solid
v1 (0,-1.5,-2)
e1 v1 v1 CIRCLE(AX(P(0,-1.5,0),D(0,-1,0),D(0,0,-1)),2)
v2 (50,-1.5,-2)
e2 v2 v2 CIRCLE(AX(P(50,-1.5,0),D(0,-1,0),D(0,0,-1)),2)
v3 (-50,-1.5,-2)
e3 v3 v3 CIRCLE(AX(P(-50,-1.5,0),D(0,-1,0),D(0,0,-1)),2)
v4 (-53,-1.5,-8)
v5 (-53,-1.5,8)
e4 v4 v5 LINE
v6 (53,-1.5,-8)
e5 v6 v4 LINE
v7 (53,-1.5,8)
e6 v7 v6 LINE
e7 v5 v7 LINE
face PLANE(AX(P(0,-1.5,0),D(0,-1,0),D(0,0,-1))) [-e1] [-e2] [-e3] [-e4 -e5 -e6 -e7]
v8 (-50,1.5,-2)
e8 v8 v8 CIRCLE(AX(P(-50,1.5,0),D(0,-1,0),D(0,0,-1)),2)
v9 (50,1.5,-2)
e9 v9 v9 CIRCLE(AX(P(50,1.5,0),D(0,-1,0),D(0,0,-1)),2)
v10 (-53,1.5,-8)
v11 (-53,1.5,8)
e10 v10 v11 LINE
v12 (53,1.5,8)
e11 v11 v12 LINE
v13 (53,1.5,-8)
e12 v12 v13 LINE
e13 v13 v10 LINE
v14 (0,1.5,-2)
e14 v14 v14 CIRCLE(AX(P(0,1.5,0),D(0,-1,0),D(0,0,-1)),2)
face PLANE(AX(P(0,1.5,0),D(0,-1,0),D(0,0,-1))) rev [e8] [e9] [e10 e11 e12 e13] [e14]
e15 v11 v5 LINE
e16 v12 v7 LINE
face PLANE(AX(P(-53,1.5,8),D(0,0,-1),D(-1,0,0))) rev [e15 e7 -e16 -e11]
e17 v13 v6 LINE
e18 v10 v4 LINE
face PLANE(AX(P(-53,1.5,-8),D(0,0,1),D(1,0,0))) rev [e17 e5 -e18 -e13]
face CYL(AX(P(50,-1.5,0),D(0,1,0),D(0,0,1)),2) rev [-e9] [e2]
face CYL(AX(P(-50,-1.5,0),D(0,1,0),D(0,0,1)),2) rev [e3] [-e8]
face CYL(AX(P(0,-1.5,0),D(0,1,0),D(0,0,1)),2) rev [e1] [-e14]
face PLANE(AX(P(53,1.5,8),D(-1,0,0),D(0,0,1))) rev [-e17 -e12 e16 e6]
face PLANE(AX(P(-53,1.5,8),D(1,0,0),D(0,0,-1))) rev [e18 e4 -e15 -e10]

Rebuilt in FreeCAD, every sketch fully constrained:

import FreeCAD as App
import Part
import Sketcher

V = App.Vector


def add_polygon(sketch, points):
    """Adds a closed chain of lines whose ends are joined by coincident constraints."""
    first, n = sketch.GeometryCount, len(points)
    for a, b in zip(points, points[1:] + points[:1]):
        sketch.addGeometry(Part.LineSegment(App.Vector(*a, 0), App.Vector(*b, 0)), False)
    for i in range(n):
        sketch.addConstraint(Sketcher.Constraint("Coincident", first + i, 2, first + (i + 1) % n, 1))

doc = App.newDocument("Part")
params = doc.addObject("Spreadsheet::Sheet", "Params")
for row, (alias, value) in enumerate([
    ("sketch1_width", "106 mm"),
    ("sketch1_height", "16 mm"),
    ("pad1_length", "3 mm"),
    ("sketch2_diameter", "4 mm"),
], start=1):
    params.set(f"A{row}", alias)
    params.set(f"B{row}", "=" + value)
    params.setAlias(f"B{row}", alias)

body = doc.addObject("PartDesign::Body", "Body")

# Sketch on XZ plane
sketch1 = body.newObject("Sketcher::SketchObject", "Sketch")
sketch1.AttachmentSupport = (doc.getObject("XZ_Plane"), [""])
sketch1.MapMode = "FlatFace"
add_polygon(sketch1, [(-53, -8), (-53, 8), (53, 8), (53, -8)])  # lines 0-3
sketch1.addConstraint(Sketcher.Constraint("Vertical", 0))
sketch1.addConstraint(Sketcher.Constraint("Horizontal", 1))
sketch1.addConstraint(Sketcher.Constraint("Vertical", 2))
sketch1.addConstraint(Sketcher.Constraint("Horizontal", 3))
sketch1.addConstraint(Sketcher.Constraint("Symmetric", 0, 2, 2, 2, -1, 1))
sketch1.addConstraint(Sketcher.Constraint("DistanceX", 1, 1, 1, 2, 106.0))
sketch1.addConstraint(Sketcher.Constraint("DistanceY", 0, 1, 0, 2, 16.0))
sketch1.setExpression("Constraints[9]", "Params.sketch1_width")
sketch1.setExpression("Constraints[10]", "Params.sketch1_height")
pad1 = body.newObject("PartDesign::Pad", "Pad")
pad1.Profile = sketch1
pad1.setExpression("Length", "Params.pad1_length")
pad1.Midplane = True

# Sketch on XZ plane
sketch2 = body.newObject("Sketcher::SketchObject", "Sketch001")
sketch2.AttachmentSupport = (doc.getObject("XZ_Plane"), [""])
sketch2.MapMode = "FlatFace"
sketch2.AttachmentOffset = App.Placement(V(0, 0, -1.5), App.Rotation())
sketch2.addGeometry(Part.Circle(V(0, 0, 0), V(0, 0, 1), 2), False)
sketch2.addGeometry(Part.Circle(V(-50, 0, 0), V(0, 0, 1), 2), False)
sketch2.addGeometry(Part.Circle(V(50, 0, 0), V(0, 0, 1), 2), False)
sketch2.addConstraint(Sketcher.Constraint("Coincident", 0, 3, -1, 1))
sketch2.addConstraint(Sketcher.Constraint("Equal", 0, 1))
sketch2.addConstraint(Sketcher.Constraint("Equal", 1, 2))
sketch2.addConstraint(Sketcher.Constraint("Symmetric", 1, 3, 2, 3, -1, 1))
sketch2.addConstraint(Sketcher.Constraint("PointOnObject", 1, 3, -1))
sketch2.addConstraint(Sketcher.Constraint("Diameter", 0, 4.0))
sketch2.addConstraint(Sketcher.Constraint("DistanceX", 1, 3, -1, 1, 50.0))
sketch2.setExpression("Constraints[5]", "Params.sketch2_diameter")
pocket1 = body.newObject("PartDesign::Pocket", "Pocket")
pocket1.Profile = sketch2
pocket1.Type = "ThroughAll"
pocket1.Reversed = True

doc.recompute()
